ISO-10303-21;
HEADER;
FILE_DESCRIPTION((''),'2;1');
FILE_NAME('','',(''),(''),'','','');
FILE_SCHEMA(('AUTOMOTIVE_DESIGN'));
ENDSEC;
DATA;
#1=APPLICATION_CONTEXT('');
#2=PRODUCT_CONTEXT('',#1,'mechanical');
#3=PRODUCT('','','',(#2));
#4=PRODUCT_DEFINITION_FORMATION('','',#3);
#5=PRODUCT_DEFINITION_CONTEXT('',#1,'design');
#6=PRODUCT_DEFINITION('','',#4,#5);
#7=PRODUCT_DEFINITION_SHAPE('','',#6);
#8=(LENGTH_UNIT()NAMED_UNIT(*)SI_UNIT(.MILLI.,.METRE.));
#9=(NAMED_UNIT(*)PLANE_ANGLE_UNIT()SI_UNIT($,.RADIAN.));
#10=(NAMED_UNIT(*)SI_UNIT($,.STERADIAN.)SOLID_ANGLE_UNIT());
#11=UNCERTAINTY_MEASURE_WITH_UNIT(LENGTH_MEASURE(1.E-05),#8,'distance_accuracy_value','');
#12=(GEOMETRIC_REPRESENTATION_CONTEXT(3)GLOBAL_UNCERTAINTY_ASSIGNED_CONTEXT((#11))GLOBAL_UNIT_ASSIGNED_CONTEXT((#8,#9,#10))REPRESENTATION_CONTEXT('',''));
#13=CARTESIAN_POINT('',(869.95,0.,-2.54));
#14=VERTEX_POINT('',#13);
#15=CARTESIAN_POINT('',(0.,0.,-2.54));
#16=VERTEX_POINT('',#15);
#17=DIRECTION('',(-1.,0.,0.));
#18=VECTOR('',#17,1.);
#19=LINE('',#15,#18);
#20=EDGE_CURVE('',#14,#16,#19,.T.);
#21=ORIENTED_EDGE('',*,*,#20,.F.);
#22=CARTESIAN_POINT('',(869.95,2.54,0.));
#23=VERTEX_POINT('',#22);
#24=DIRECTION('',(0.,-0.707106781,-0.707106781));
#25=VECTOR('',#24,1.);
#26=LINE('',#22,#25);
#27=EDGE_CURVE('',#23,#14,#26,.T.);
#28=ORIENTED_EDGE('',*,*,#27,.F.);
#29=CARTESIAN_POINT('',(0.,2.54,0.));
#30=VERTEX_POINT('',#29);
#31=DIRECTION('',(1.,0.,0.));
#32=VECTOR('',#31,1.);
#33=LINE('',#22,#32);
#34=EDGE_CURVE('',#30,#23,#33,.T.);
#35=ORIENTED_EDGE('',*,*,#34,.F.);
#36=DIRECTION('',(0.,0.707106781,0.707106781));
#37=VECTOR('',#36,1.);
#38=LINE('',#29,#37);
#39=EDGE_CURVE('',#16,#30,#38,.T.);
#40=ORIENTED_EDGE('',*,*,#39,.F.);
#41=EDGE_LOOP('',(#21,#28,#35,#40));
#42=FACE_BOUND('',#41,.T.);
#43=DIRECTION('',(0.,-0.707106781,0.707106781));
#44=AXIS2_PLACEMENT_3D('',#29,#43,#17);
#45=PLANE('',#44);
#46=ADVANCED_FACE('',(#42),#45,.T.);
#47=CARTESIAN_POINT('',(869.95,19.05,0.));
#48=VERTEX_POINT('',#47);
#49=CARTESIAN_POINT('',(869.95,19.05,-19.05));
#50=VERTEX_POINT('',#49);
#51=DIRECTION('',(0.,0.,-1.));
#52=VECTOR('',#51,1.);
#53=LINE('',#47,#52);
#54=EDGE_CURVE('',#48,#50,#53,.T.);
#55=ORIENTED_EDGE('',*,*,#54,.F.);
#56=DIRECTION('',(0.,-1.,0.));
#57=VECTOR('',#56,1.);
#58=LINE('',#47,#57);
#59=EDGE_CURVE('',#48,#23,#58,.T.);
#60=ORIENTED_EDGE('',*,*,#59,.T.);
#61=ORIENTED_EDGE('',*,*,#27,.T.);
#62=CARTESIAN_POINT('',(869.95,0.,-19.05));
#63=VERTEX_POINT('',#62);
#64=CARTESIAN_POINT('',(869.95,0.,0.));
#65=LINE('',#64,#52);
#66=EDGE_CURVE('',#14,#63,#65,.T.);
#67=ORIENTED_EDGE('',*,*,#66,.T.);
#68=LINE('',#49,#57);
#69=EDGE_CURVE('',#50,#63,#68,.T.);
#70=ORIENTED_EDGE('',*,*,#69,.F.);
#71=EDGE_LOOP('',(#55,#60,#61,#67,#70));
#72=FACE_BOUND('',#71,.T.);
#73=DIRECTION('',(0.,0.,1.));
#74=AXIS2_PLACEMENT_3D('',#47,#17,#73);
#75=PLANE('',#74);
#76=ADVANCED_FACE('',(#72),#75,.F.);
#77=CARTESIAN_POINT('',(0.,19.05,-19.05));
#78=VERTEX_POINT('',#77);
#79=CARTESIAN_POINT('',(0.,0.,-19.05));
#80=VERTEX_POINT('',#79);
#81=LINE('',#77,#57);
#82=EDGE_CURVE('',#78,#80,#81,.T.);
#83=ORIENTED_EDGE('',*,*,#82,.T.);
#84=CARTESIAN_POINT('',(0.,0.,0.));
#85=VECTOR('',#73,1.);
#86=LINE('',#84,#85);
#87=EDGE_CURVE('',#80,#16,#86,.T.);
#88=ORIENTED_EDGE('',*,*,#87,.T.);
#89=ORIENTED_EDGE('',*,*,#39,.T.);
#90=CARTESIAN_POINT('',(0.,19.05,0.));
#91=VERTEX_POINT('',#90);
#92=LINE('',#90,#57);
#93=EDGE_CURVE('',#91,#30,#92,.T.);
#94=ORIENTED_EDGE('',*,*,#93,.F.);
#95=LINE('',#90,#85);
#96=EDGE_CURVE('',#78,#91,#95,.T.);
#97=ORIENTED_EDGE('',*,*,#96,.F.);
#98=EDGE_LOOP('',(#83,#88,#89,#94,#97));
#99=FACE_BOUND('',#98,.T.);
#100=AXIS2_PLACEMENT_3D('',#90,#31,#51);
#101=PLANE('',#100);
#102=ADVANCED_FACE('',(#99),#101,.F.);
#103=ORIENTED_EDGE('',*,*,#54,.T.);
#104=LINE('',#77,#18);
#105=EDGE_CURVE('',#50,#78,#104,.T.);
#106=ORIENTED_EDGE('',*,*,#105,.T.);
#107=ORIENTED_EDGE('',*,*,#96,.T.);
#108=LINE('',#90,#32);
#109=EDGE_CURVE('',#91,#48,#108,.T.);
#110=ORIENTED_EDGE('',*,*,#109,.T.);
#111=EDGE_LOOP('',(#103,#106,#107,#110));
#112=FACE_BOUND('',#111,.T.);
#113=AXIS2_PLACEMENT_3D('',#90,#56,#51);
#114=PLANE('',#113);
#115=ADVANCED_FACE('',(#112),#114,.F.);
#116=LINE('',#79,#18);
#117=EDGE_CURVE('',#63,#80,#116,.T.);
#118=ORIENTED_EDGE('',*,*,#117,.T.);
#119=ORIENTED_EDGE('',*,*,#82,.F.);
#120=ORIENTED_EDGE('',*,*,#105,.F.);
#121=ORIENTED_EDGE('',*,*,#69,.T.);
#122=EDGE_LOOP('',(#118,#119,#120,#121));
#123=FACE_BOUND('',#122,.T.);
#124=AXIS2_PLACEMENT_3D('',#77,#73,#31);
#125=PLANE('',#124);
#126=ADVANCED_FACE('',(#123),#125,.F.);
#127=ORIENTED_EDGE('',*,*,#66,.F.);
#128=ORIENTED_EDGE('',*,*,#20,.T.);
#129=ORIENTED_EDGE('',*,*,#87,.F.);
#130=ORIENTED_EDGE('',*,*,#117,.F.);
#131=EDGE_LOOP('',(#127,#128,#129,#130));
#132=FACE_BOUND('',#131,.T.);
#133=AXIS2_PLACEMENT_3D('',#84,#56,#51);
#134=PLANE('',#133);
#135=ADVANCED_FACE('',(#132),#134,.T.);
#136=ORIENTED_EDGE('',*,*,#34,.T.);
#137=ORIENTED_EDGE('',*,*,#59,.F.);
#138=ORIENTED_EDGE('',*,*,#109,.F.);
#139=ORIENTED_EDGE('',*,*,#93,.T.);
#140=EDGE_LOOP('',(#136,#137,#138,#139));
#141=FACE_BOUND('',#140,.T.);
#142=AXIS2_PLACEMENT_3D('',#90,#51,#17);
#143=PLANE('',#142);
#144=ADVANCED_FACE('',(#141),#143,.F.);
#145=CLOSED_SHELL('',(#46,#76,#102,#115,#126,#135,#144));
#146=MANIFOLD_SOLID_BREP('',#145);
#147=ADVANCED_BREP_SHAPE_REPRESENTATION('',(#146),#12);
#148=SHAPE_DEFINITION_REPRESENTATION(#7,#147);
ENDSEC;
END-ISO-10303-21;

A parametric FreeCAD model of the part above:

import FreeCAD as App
import Part
import Sketcher
Q = App.Units.Quantity


def edges_at(feature, points):
    """Names of the edges that pass closest to the given points."""
    edges = feature.Shape.Edges
    near = lambda p: min(range(len(edges)), key=lambda i: edges[i].distToShape(Part.Vertex(*p))[0])
    return sorted({f"Edge{near(p) + 1}" for p in points})

doc = App.newDocument("Part")
body = doc.addObject("PartDesign::Body", "Body")

sketch1 = body.newObject("Sketcher::SketchObject", "Sketch")
sketch1.AttachmentSupport = (doc.getObject("XZ_Plane"), [""])
sketch1.MapMode = "FlatFace"
sketch1.addGeometry(Part.LineSegment(App.Vector(0, -19, 0), App.Vector(0, 0, 0)), False)
sketch1.addGeometry(Part.LineSegment(App.Vector(0, 0, 0), App.Vector(870, 0, 0)), False)
sketch1.addGeometry(Part.LineSegment(App.Vector(870, 0, 0), App.Vector(870, -19, 0)), False)
sketch1.addGeometry(Part.LineSegment(App.Vector(870, -19, 0), App.Vector(0, -19, 0)), False)
sketch1.addConstraint(Sketcher.Constraint("Coincident", 0, 2, 1, 1))
sketch1.addConstraint(Sketcher.Constraint("Coincident", 1, 2, 2, 1))
sketch1.addConstraint(Sketcher.Constraint("Coincident", 2, 2, 3, 1))
sketch1.addConstraint(Sketcher.Constraint("Coincident", 3, 2, 0, 1))
sketch1.addConstraint(Sketcher.Constraint("Vertical", 0))
sketch1.addConstraint(Sketcher.Constraint("Horizontal", 1))
sketch1.addConstraint(Sketcher.Constraint("Vertical", 2))
sketch1.addConstraint(Sketcher.Constraint("Horizontal", 3))
sketch1.addConstraint(Sketcher.Constraint("Coincident", 0, 2, -1, 1))
sketch1.addConstraint(Sketcher.Constraint("DistanceX", 1, 1, 1, 2, Q("34.25 in")))
sketch1.addConstraint(Sketcher.Constraint("DistanceY", 0, 1, 0, 2, Q("0.75 in")))
pad1 = body.newObject("PartDesign::Pad", "Pad")
pad1.Profile = sketch1
pad1.Length = Q("0.75 in")
pad1.Reversed = True
doc.recompute()

chamfer = body.newObject("PartDesign::Chamfer", "Chamfer")
chamfer.Base = (pad1, edges_at(pad1, [(434.975, 0, 0)]))
chamfer.Size = Q("0.1 in")

doc.recompute()
